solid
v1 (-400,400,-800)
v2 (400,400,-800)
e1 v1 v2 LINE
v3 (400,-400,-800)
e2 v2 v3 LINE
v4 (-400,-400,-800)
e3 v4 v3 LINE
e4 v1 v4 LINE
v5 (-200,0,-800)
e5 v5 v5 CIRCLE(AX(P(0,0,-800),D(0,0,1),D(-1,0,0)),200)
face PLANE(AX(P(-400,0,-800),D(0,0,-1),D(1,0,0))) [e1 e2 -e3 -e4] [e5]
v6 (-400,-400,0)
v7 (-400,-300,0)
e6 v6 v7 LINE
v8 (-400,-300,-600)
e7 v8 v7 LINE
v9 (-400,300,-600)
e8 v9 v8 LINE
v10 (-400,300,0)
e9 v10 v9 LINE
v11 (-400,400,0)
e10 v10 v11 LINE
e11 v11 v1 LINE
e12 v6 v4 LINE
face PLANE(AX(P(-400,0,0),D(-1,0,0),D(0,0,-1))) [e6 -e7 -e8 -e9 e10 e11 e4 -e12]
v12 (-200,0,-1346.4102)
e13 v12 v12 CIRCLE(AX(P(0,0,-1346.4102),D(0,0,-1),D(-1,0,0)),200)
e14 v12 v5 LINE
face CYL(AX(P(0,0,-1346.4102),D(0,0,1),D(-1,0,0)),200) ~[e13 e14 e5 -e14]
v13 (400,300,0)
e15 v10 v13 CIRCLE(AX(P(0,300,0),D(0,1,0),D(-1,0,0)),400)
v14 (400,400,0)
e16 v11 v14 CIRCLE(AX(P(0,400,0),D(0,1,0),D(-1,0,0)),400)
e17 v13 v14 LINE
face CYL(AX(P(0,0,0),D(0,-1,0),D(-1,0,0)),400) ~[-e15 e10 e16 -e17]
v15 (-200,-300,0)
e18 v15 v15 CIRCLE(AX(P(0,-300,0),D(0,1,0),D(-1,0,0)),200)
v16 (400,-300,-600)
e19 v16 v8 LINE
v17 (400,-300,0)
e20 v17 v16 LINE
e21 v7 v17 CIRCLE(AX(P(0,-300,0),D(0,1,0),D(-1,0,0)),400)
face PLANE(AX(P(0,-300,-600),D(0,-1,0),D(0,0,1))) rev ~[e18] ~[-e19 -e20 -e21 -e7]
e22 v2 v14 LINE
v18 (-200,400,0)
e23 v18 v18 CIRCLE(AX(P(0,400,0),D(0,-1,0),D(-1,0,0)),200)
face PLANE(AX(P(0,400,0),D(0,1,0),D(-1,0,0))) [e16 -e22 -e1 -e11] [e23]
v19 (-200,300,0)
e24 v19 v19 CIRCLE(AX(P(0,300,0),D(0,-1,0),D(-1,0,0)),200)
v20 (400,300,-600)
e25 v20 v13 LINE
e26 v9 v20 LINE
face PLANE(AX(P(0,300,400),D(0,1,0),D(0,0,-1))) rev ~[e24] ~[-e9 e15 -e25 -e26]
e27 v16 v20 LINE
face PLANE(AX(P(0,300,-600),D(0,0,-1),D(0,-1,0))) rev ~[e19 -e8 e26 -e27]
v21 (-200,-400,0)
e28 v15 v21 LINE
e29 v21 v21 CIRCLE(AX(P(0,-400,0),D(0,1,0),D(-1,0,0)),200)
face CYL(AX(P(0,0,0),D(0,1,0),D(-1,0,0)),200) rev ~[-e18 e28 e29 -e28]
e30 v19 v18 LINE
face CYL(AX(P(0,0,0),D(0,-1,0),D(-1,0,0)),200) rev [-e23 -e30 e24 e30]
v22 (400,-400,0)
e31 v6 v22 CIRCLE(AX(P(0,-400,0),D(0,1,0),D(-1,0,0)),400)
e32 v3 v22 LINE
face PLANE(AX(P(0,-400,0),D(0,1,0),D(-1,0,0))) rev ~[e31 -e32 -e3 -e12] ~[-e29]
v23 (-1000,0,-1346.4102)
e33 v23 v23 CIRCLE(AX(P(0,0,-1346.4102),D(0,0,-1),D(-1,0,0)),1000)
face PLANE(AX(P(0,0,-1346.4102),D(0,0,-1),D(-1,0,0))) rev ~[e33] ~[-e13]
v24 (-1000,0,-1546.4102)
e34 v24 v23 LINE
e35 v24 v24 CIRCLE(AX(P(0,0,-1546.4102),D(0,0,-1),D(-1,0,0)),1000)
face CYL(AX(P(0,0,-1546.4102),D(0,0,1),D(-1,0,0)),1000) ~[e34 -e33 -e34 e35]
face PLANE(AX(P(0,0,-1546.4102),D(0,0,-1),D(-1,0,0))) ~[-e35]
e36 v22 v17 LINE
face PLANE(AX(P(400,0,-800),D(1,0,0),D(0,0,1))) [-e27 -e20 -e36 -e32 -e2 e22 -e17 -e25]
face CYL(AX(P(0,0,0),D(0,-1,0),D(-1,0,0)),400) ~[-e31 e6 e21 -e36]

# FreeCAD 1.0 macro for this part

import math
import FreeCAD as App
import Part
import Sketcher

V = App.Vector

doc = App.newDocument("Part")
body = doc.addObject("PartDesign::Body", "Body")

# Sketch on XZ plane
sketch1 = body.newObject("Sketcher::SketchObject", "Sketch")
sketch1.AttachmentSupport = (doc.getObject("XZ_Plane"), [""])
sketch1.MapMode = "FlatFace"
sketch1.addGeometry(Part.LineSegment(V(0, -346, 0), V(0, -1546, 0)), False)
sketch1.addGeometry(Part.LineSegment(V(0, -1546, 0), V(-1000, -1546, 0)), False)
sketch1.addGeometry(Part.LineSegment(V(-1000, -1546, 0), V(-1000, -1346, 0)), False)
sketch1.addGeometry(Part.LineSegment(V(-1000, -1346, 0), V(-200, -1346, 0)), False)
sketch1.addGeometry(Part.LineSegment(V(-200, -1346, 0), V(-200, -346, 0)), False)
sketch1.addGeometry(Part.LineSegment(V(-200, -346, 0), V(0, -346, 0)), False)
sketch1.addConstraint(Sketcher.Constraint("Coincident", 0, 2, 1, 1))
sketch1.addConstraint(Sketcher.Constraint("Coincident", 1, 2, 2, 1))
sketch1.addConstraint(Sketcher.Constraint("Coincident", 2, 2, 3, 1))
sketch1.addConstraint(Sketcher.Constraint("Coincident", 3, 2, 4, 1))
sketch1.addConstraint(Sketcher.Constraint("Coincident", 4, 2, 5, 1))
sketch1.addConstraint(Sketcher.Constraint("Coincident", 5, 2, 0, 1))
sketch1.addConstraint(Sketcher.Constraint("Vertical", 0))
sketch1.addConstraint(Sketcher.Constraint("Horizontal", 1))
sketch1.addConstraint(Sketcher.Constraint("Vertical", 2))
sketch1.addConstraint(Sketcher.Constraint("Horizontal", 3))
sketch1.addConstraint(Sketcher.Constraint("Vertical", 4))
sketch1.addConstraint(Sketcher.Constraint("Horizontal", 5))
sketch1.addConstraint(Sketcher.Constraint("PointOnObject", 0, 2, -2))
sketch1.addConstraint(Sketcher.Constraint("Equal", 5, 2))
sketch1.addConstraint(Sketcher.Constraint("Equal", 1, 4))
sketch1.addConstraint(Sketcher.Constraint("DistanceX", 1, 2, 1, 1, 1000.0))
sketch1.addConstraint(Sketcher.Constraint("DistanceX", 5, 1, 5, 2, 200.0))
sketch1.addConstraint(Sketcher.Constraint("DistanceY", 0, 2, -1, 1, 1546.4102))
revolution = body.newObject("PartDesign::Revolution", "Revolution")
revolution.Profile = sketch1
revolution.ReferenceAxis = (sketch1, ["V_Axis"])
revolution.Angle = 360

# Sketch on XZ plane
sketch2 = body.newObject("Sketcher::SketchObject", "Sketch001")
sketch2.AttachmentSupport = (doc.getObject("XZ_Plane"), [""])
sketch2.MapMode = "FlatFace"
sketch2.addGeometry(Part.LineSegment(V(-400, -800, 0), V(-400, 0, 0)), False)
sketch2.addGeometry(Part.ArcOfCircle(Part.Circle(V(0, 0, 0), V(0, 0, 1), 400), math.radians(0), math.radians(180)), False)
sketch2.addGeometry(Part.LineSegment(V(400, 0, 0), V(400, -800, 0)), False)
sketch2.addGeometry(Part.LineSegment(V(400, -800, 0), V(-400, -800, 0)), False)
sketch2.addConstraint(Sketcher.Constraint("Tangent", 0, 2, 1, 2))
sketch2.addConstraint(Sketcher.Constraint("Tangent", 1, 1, 2, 1))
sketch2.addConstraint(Sketcher.Constraint("Coincident", 2, 2, 3, 1))
sketch2.addConstraint(Sketcher.Constraint("Coincident", 3, 2, 0, 1))
sketch2.addConstraint(Sketcher.Constraint("Vertical", 0))
sketch2.addConstraint(Sketcher.Constraint("Vertical", 2))
sketch2.addConstraint(Sketcher.Constraint("Horizontal", 3))
sketch2.addConstraint(Sketcher.Constraint("Coincident", 1, 3, -1, 1))
sketch2.addConstraint(Sketcher.Constraint("Equal", 3, 0))
sketch2.addConstraint(Sketcher.Constraint("Radius", 1, 400.0))
pad1 = body.newObject("PartDesign::Pad", "Pad")
pad1.Profile = sketch2
pad1.Length = 800
pad1.Midplane = True

# Sketch on XZ plane
sketch3 = body.newObject("Sketcher::SketchObject", "Sketch002")
sketch3.AttachmentSupport = (doc.getObject("XZ_Plane"), [""])
sketch3.MapMode = "FlatFace"
sketch3.addGeometry(Part.Circle(V(0, 0, 0), V(0, 0, 1), 200), False)
sketch3.addConstraint(Sketcher.Constraint("Coincident", 0, 3, -1, 1))
sketch3.addConstraint(Sketcher.Constraint("Diameter", 0, 400.0))
pocket1 = body.newObject("PartDesign::Pocket", "Pocket")
pocket1.Profile = sketch3
pocket1.Type = "ThroughAll"
pocket1.Midplane = True

# Sketch on YZ plane
sketch4 = body.newObject("Sketcher::SketchObject", "Sketch003")
sketch4.AttachmentSupport = (doc.getObject("YZ_Plane"), [""])
sketch4.MapMode = "FlatFace"
sketch4.addGeometry(Part.LineSegment(V(-300, -600, 0), V(300, -600, 0)), False)
sketch4.addGeometry(Part.LineSegment(V(300, -600, 0), V(300, 400, 0)), False)
sketch4.addGeometry(Part.LineSegment(V(300, 400, 0), V(-300, 400, 0)), False)
sketch4.addGeometry(Part.LineSegment(V(-300, 400, 0), V(-300, -600, 0)), False)
sketch4.addConstraint(Sketcher.Constraint("Coincident", 0, 2, 1, 1))
sketch4.addConstraint(Sketcher.Constraint("Coincident", 1, 2, 2, 1))
sketch4.addConstraint(Sketcher.Constraint("Coincident", 2, 2, 3, 1))
sketch4.addConstraint(Sketcher.Constraint("Coincident", 3, 2, 0, 1))
sketch4.addConstraint(Sketcher.Constraint("Horizontal", 0))
sketch4.addConstraint(Sketcher.Constraint("Vertical", 1))
sketch4.addConstraint(Sketcher.Constraint("Horizontal", 2))
sketch4.addConstraint(Sketcher.Constraint("Vertical", 3))
sketch4.addConstraint(Sketcher.Constraint("DistanceX", 0, 1, 0, 2, 600.0))
sketch4.addConstraint(Sketcher.Constraint("DistanceX", -1, 1, 0, 2, 300.0))
sketch4.addConstraint(Sketcher.Constraint("DistanceY", 0, 2, -1, 1, 600.0))
sketch4.addConstraint(Sketcher.Constraint("DistanceY", -1, 1, 1, 2, 400.0))
pocket2 = body.newObject("PartDesign::Pocket", "Pocket001")
pocket2.Profile = sketch4
pocket2.Type = "ThroughAll"
pocket2.Midplane = True

doc.recompute()
